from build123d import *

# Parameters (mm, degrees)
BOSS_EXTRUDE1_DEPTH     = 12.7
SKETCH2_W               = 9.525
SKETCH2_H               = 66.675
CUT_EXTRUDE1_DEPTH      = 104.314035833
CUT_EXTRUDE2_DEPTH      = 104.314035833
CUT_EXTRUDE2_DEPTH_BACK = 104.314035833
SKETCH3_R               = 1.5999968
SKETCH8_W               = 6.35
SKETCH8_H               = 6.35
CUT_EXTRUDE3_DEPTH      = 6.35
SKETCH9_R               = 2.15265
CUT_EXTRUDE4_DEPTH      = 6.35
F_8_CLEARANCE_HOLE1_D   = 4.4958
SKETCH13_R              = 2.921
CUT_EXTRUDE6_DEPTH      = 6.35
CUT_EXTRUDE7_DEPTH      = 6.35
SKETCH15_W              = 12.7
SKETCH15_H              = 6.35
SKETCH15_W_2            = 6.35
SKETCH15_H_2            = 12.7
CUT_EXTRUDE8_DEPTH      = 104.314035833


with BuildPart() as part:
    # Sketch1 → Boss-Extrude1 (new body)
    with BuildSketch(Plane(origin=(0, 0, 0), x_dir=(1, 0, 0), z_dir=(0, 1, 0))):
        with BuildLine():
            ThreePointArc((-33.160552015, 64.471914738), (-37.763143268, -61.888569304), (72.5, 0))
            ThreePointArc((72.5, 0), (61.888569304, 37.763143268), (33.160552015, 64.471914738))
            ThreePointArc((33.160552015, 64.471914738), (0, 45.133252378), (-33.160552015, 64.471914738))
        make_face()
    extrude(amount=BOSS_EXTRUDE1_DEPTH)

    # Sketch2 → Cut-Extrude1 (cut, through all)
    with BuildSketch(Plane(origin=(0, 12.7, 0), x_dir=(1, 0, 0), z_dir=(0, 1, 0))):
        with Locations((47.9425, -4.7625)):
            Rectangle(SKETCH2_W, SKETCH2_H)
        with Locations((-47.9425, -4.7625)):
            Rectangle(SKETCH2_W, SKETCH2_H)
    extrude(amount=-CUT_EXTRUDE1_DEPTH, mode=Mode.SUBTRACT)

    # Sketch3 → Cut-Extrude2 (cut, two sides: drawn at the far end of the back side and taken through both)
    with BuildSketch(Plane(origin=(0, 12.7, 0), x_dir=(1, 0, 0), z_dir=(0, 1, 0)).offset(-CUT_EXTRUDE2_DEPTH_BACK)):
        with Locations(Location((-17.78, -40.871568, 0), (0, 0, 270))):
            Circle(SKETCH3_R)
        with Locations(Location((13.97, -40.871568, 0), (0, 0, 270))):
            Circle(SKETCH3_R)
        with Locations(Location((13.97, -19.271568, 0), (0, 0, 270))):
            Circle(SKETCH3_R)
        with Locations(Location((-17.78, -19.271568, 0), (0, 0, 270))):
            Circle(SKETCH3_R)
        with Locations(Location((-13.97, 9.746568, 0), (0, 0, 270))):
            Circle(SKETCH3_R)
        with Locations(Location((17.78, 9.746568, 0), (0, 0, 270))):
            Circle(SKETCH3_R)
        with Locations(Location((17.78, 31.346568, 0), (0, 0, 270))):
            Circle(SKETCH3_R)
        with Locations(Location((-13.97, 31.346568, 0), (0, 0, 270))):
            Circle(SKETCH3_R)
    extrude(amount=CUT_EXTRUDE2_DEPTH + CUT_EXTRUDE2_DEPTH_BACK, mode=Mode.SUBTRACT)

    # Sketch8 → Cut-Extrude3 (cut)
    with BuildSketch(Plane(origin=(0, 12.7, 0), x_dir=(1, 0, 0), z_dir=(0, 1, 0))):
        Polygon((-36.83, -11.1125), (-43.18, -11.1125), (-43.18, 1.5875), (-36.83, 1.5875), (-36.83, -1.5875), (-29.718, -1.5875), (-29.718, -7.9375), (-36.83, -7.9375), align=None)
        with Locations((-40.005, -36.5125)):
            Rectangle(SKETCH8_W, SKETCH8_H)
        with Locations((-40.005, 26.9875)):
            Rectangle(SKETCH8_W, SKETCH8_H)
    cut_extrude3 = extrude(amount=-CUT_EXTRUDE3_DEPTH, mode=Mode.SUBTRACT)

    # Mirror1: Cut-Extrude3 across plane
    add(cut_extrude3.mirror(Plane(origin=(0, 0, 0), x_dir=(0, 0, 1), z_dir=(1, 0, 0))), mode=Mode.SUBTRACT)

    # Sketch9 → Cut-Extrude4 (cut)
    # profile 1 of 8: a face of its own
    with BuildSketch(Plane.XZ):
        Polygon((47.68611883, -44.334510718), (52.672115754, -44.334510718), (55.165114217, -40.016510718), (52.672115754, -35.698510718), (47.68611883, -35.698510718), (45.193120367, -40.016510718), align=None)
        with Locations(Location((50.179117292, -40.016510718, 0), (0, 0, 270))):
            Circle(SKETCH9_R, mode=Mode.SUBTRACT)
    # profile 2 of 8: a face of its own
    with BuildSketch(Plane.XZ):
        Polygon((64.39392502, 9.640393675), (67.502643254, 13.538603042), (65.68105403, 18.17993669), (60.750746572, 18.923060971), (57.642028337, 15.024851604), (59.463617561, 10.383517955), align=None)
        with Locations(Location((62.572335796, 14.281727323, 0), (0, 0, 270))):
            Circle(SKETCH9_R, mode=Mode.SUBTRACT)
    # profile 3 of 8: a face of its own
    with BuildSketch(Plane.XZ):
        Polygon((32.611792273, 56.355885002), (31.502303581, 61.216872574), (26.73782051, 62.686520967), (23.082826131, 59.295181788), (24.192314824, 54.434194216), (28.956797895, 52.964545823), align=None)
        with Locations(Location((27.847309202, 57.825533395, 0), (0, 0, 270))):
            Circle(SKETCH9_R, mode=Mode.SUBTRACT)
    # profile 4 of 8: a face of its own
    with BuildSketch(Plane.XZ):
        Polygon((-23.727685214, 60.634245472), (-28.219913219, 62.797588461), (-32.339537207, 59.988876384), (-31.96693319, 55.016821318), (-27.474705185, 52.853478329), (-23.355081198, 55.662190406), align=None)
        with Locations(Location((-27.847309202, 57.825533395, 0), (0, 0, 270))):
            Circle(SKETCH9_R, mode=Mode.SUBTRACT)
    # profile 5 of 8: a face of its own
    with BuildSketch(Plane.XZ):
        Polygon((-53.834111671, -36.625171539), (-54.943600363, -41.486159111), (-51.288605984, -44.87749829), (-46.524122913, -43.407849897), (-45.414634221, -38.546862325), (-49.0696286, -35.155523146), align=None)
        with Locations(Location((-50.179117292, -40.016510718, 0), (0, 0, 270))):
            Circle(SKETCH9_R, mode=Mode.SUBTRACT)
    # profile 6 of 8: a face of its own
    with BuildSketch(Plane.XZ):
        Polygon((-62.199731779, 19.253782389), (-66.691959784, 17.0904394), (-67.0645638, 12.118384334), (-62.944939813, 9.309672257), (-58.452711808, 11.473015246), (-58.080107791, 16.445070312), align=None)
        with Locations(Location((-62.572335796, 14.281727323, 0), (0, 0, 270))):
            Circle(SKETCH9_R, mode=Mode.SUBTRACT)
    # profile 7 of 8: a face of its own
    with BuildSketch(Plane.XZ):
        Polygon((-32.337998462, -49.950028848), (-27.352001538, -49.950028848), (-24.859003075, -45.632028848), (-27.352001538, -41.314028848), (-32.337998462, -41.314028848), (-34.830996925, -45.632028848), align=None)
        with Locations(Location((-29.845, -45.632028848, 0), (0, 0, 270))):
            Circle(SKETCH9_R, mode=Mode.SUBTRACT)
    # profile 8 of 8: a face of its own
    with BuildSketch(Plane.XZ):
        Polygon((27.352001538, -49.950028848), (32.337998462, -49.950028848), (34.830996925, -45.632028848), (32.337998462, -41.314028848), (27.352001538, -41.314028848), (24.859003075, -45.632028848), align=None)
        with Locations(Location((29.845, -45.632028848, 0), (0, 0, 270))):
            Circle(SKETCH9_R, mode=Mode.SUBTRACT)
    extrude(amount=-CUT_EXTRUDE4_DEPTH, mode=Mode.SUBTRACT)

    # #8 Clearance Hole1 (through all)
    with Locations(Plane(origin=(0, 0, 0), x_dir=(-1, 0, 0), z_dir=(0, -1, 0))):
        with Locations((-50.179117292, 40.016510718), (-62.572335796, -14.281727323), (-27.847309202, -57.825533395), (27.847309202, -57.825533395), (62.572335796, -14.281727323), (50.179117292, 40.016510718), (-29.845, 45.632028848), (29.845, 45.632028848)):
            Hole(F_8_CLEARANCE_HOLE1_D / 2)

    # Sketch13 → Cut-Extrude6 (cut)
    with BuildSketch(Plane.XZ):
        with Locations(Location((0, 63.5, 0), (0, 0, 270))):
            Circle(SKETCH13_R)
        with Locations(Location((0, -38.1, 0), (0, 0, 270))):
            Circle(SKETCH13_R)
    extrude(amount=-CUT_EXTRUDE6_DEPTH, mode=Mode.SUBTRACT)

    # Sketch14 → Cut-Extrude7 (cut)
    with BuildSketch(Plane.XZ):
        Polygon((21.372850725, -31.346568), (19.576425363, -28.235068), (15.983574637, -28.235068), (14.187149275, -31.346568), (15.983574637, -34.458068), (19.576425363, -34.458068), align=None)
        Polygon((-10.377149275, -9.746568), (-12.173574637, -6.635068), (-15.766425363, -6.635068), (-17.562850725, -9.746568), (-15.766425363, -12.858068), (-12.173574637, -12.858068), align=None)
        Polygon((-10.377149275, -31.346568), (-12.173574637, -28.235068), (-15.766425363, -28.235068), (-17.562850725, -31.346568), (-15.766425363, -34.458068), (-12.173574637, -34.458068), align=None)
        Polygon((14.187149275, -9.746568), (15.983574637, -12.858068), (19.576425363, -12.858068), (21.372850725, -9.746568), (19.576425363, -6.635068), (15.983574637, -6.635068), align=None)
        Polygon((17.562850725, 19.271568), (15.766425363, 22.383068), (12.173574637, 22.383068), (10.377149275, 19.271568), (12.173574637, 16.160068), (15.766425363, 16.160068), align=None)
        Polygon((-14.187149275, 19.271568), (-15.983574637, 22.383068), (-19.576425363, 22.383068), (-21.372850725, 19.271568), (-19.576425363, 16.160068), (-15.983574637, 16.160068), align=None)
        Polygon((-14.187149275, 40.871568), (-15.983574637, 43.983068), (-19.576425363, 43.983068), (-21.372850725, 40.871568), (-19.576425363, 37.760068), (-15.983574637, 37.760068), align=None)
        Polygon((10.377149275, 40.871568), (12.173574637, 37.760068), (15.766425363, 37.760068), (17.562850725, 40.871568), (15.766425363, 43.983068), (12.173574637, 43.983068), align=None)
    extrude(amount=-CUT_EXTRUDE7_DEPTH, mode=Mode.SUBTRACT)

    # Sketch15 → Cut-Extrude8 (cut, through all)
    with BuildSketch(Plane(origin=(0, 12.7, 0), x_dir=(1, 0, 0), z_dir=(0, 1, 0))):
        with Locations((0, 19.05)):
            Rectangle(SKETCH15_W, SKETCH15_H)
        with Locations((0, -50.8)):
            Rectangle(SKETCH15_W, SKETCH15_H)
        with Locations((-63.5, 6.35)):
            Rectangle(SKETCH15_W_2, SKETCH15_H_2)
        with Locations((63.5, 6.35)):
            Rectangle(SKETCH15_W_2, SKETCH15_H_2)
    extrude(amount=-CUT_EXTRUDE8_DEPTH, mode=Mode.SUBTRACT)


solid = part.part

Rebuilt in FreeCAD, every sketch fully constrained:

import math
import FreeCAD as App
import Part
import Sketcher
Q = App.Units.Quantity

doc = App.newDocument("Part")
body = doc.addObject("PartDesign::Body", "Body")

# Sketch on XZ plane
sketch1 = body.newObject("Sketcher::SketchObject", "Sketch")
sketch1.AttachmentSupport = (doc.getObject("XZ_Plane"), [""])
sketch1.MapMode = "FlatFace"
sketch1.addGeometry([
    Part.ArcOfCircle(Part.Circle(App.Vector(0, 0, 0), App.Vector(0, 0, 1), 72), math.radians(0), math.radians(243)),
    Part.ArcOfCircle(Part.Circle(App.Vector(0, 0, 0), App.Vector(0, 0, 1), 72), math.radians(-63), math.radians(0)),
    Part.ArcOfCircle(Part.Circle(App.Vector(0, -83, 0), App.Vector(0, 0, 1), 38), math.radians(30), math.radians(150)),
], False)
sketch1.addConstraint([
    Sketcher.Constraint("Tangent", 0, 1, 1, 2),
    Sketcher.Constraint("Coincident", 1, 1, 2, 1),
    Sketcher.Constraint("Coincident", 2, 2, 0, 2),
    Sketcher.Constraint("Coincident", 0, 3, -1, 1),
    Sketcher.Constraint("Equal", 0, 1),
    Sketcher.Constraint("PointOnObject", 2, 3, -2),
    Sketcher.Constraint("PointOnObject", 0, 1, -1),
    Sketcher.Constraint("Radius", 2, Q("1.5 in")),
    Sketcher.Constraint("Radius", 0, 72.5),
    Sketcher.Constraint("DistanceY", 2, 3, -1, 1, 83.233252),
])
pad1 = body.newObject("PartDesign::Pad", "Pad")
pad1.Profile = sketch1
pad1.Length = Q("0.5 in")
pad1.Reversed = True

# Sketch on XZ plane
sketch2 = body.newObject("Sketcher::SketchObject", "Sketch001")
sketch2.AttachmentSupport = (doc.getObject("XZ_Plane"), [""])
sketch2.MapMode = "FlatFace"
sketch2.AttachmentOffset = App.Placement(App.Vector(0, 0, -0.5 * 25.4), App.Rotation())
sketch2.addGeometry([
    Part.LineSegment(App.Vector(43, -29, 0), App.Vector(43, 38, 0)),  # 0
    Part.LineSegment(App.Vector(43, 38, 0), App.Vector(53, 38, 0)),  # 1
    Part.LineSegment(App.Vector(53, 38, 0), App.Vector(53, -29, 0)),  # 2
    Part.LineSegment(App.Vector(53, -29, 0), App.Vector(43, -29, 0)),  # 3
    Part.LineSegment(App.Vector(-53, -29, 0), App.Vector(-53, 38, 0)),  # 4
    Part.LineSegment(App.Vector(-53, 38, 0), App.Vector(-43, 38, 0)),  # 5
    Part.LineSegment(App.Vector(-43, 38, 0), App.Vector(-43, -29, 0)),  # 6
    Part.LineSegment(App.Vector(-43, -29, 0), App.Vector(-53, -29, 0)),  # 7
], False)
sketch2.addConstraint([
    Sketcher.Constraint("Coincident", 0, 2, 1, 1),
    Sketcher.Constraint("Coincident", 1, 2, 2, 1),
    Sketcher.Constraint("Coincident", 2, 2, 3, 1),
    Sketcher.Constraint("Coincident", 3, 2, 0, 1),
    Sketcher.Constraint("Coincident", 4, 2, 5, 1),
    Sketcher.Constraint("Coincident", 5, 2, 6, 1),
    Sketcher.Constraint("Coincident", 6, 2, 7, 1),
    Sketcher.Constraint("Coincident", 7, 2, 4, 1),
    Sketcher.Constraint("Vertical", 0),
    Sketcher.Constraint("Horizontal", 1),
    Sketcher.Constraint("Vertical", 2),
    Sketcher.Constraint("Horizontal", 3),
    Sketcher.Constraint("Vertical", 4),
    Sketcher.Constraint("Horizontal", 5),
    Sketcher.Constraint("Vertical", 6),
    Sketcher.Constraint("Horizontal", 7),
    Sketcher.Constraint("Symmetric", 1, 2, 4, 2, -2),
    Sketcher.Constraint("Symmetric", 3, 2, 6, 2, -2),
    Sketcher.Constraint("DistanceX", -1, 1, 0, 2, Q("1.7 in")),
    Sketcher.Constraint("DistanceY", -1, 1, 0, 2, Q("1.5 in")),
    Sketcher.Constraint("DistanceX", 1, 1, 1, 2, Q("0.375 in")),
    Sketcher.Constraint("DistanceY", 0, 1, 0, 2, Q("2.625 in")),
])
pocket1 = body.newObject("PartDesign::Pocket", "Pocket")
pocket1.Profile = sketch2
pocket1.Type = "ThroughAll"
pocket1.Reversed = True

# Sketch on XZ plane
sketch3 = body.newObject("Sketcher::SketchObject", "Sketch002")
sketch3.AttachmentSupport = (doc.getObject("XZ_Plane"), [""])
sketch3.MapMode = "FlatFace"
sketch3.AttachmentOffset = App.Placement(App.Vector(0, 0, -0.5 * 25.4), App.Rotation())
sketch3.addGeometry([
    Part.Circle(App.Vector(-17.8, 40.9, 0), App.Vector(0, 0, 1), 1.6),  # 0
    Part.Circle(App.Vector(14, 40.9, 0), App.Vector(0, 0, 1), 1.6),  # 1
    Part.Circle(App.Vector(14, 19.3, 0), App.Vector(0, 0, 1), 1.6),  # 2
    Part.Circle(App.Vector(-17.8, 19.3, 0), App.Vector(0, 0, 1), 1.6),  # 3
    Part.Circle(App.Vector(-14, -9.7, 0), App.Vector(0, 0, 1), 1.6),  # 4
    Part.Circle(App.Vector(17.8, -9.7, 0), App.Vector(0, 0, 1), 1.6),  # 5
    Part.Circle(App.Vector(17.8, -31.3, 0), App.Vector(0, 0, 1), 1.6),  # 6
    Part.Circle(App.Vector(-14, -31.3, 0), App.Vector(0, 0, 1), 1.6),  # 7
], False)
sketch3.addConstraint([
    Sketcher.Constraint("Equal", 0, 1),
    Sketcher.Constraint("Equal", 1, 2),
    Sketcher.Constraint("Equal", 2, 3),
    Sketcher.Constraint("Equal", 3, 4),
    Sketcher.Constraint("Equal", 4, 5),
    Sketcher.Constraint("Equal", 5, 6),
    Sketcher.Constraint("Equal", 6, 7),
    Sketcher.Constraint("Horizontal", 0, 3, 1, 3),
    Sketcher.Constraint("Horizontal", 2, 3, 3, 3),
    Sketcher.Constraint("Horizontal", 4, 3, 5, 3),
    Sketcher.Constraint("Horizontal", 6, 3, 7, 3),
    Sketcher.Constraint("Vertical", 1, 3, 2, 3),
    Sketcher.Constraint("Vertical", 0, 3, 3, 3),
    Sketcher.Constraint("Vertical", 5, 3, 6, 3),
    Sketcher.Constraint("Vertical", 4, 3, 7, 3),
    Sketcher.Constraint("DistanceX", 0, 3, -1, 1, Q("0.7 in")),
    Sketcher.Constraint("DistanceX", -1, 1, 5, 3, Q("0.7 in")),
    Sketcher.Constraint("DistanceX", 4, 3, 2, 3, Q("1.1 in")),
    Sketcher.Constraint("DistanceX", -1, 1, 1, 3, Q("0.55 in")),
    Sketcher.Constraint("Diameter", 0, 3.199994),
    Sketcher.Constraint("DistanceY", 2, 3, 1, 3, 21.6),
    Sketcher.Constraint("DistanceY", 6, 3, 5, 3, 21.6),
    Sketcher.Constraint("DistanceY", -1, 1, 0, 3, 40.871568),
    Sketcher.Constraint("DistanceY", 6, 3, -1, 1, 31.346568),
])
pocket2 = body.newObject("PartDesign::Pocket", "Pocket001")
pocket2.Profile = sketch3
pocket2.Type = "ThroughAll"
pocket2.Midplane = True

# Sketch on XZ plane
sketch4 = body.newObject("Sketcher::SketchObject", "Sketch003")
sketch4.AttachmentSupport = (doc.getObject("XZ_Plane"), [""])
sketch4.MapMode = "FlatFace"
sketch4.AttachmentOffset = App.Placement(App.Vector(0, 0, -0.5 * 25.4), App.Rotation())
sketch4.addGeometry([
    Part.LineSegment(App.Vector(-43.2, 11.1, 0), App.Vector(-36.8, 11.1, 0)),  # 0
    Part.LineSegment(App.Vector(-36.8, 11.1, 0), App.Vector(-36.8, 7.9, 0)),  # 1
    Part.LineSegment(App.Vector(-36.8, 7.9, 0), App.Vector(-29.7, 7.9, 0)),  # 2
    Part.LineSegment(App.Vector(-29.7, 7.9, 0), App.Vector(-29.7, 1.6, 0)),  # 3
    Part.LineSegment(App.Vector(-29.7, 1.6, 0), App.Vector(-36.8, 1.6, 0)),  # 4
    Part.LineSegment(App.Vector(-36.8, 1.6, 0), App.Vector(-36.8, -1.6, 0)),  # 5
    Part.LineSegment(App.Vector(-36.8, -1.6, 0), App.Vector(-43.2, -1.6, 0)),  # 6
    Part.LineSegment(App.Vector(-43.2, -1.6, 0), App.Vector(-43.2, 11.1, 0)),  # 7
    Part.LineSegment(App.Vector(-43.2, 33.3, 0), App.Vector(-43.2, 39.7, 0)),  # 8
    Part.LineSegment(App.Vector(-43.2, 39.7, 0), App.Vector(-36.8, 39.7, 0)),  # 9
    Part.LineSegment(App.Vector(-36.8, 39.7, 0), App.Vector(-36.8, 33.3, 0)),  # 10
    Part.LineSegment(App.Vector(-36.8, 33.3, 0), App.Vector(-43.2, 33.3, 0)),  # 11
    Part.LineSegment(App.Vector(-43.2, -30.2, 0), App.Vector(-43.2, -23.8, 0)),  # 12
    Part.LineSegment(App.Vector(-43.2, -23.8, 0), App.Vector(-36.8, -23.8, 0)),  # 13
    Part.LineSegment(App.Vector(-36.8, -23.8, 0), App.Vector(-36.8, -30.2, 0)),  # 14
    Part.LineSegment(App.Vector(-36.8, -30.2, 0), App.Vector(-43.2, -30.2, 0)),  # 15
], False)
sketch4.addConstraint([
    Sketcher.Constraint("Coincident", 0, 2, 1, 1),
    Sketcher.Constraint("Coincident", 1, 2, 2, 1),
    Sketcher.Constraint("Coincident", 2, 2, 3, 1),
    Sketcher.Constraint("Coincident", 3, 2, 4, 1),
    Sketcher.Constraint("Coincident", 4, 2, 5, 1),
    Sketcher.Constraint("Coincident", 5, 2, 6, 1),
    Sketcher.Constraint("Coincident", 6, 2, 7, 1),
    Sketcher.Constraint("Coincident", 7, 2, 0, 1),
    Sketcher.Constraint("Coincident", 8, 2, 9, 1),
    Sketcher.Constraint("Coincident", 9, 2, 10, 1),
    Sketcher.Constraint("Coincident", 10, 2, 11, 1),
    Sketcher.Constraint("Coincident", 11, 2, 8, 1),
    Sketcher.Constraint("Coincident", 12, 2, 13, 1),
    Sketcher.Constraint("Coincident", 13, 2, 14, 1),
    Sketcher.Constraint("Coincident", 14, 2, 15, 1),
    Sketcher.Constraint("Coincident", 15, 2, 12, 1),
    Sketcher.Constraint("Horizontal", 0),
    Sketcher.Constraint("Vertical", 1),
    Sketcher.Constraint("Horizontal", 2),
    Sketcher.Constraint("Vertical", 3),
    Sketcher.Constraint("Horizontal", 4),
    Sketcher.Constraint("Vertical", 5),
    Sketcher.Constraint("Horizontal", 6),
    Sketcher.Constraint("Vertical", 7),
    Sketcher.Constraint("Vertical", 8),
    Sketcher.Constraint("Horizontal", 9),
    Sketcher.Constraint("Vertical", 10),
    Sketcher.Constraint("Horizontal", 11),
    Sketcher.Constraint("Vertical", 12),
    Sketcher.Constraint("Horizontal", 13),
    Sketcher.Constraint("Vertical", 14),
    Sketcher.Constraint("Horizontal", 15),
    Sketcher.Constraint("Vertical", 1, 2, 4, 2),
    Sketcher.Constraint("Vertical", 7, 2, 8, 2),
    Sketcher.Constraint("Vertical", 5, 2, 9, 2),
    Sketcher.Constraint("Vertical", 11, 2, 12, 2),
    Sketcher.Constraint("Vertical", 10, 2, 13, 2),
    Sketcher.Constraint("Equal", 15, 3),
    Sketcher.Constraint("Equal", 1, 5),
    Sketcher.Constraint("Equal", 3, 8),
    Sketcher.Constraint("Equal", 10, 12),
    Sketcher.Constraint("DistanceY", 7, 1, 7, 2, Q("0.5 in")),
    Sketcher.Constraint("DistanceY", 1, 2, 10, 2, Q("1 in")),
    Sketcher.Constraint("DistanceY", 12, 2, 4, 2, Q("1 in")),
    Sketcher.Constraint("DistanceX", 0, 1, 0, 2, Q("0.25 in")),
    Sketcher.Constraint("DistanceX", 2, 1, 2, 2, Q("0.28 in")),
    Sketcher.Constraint("DistanceX", 6, 2, -1, 1, Q("1.7 in")),
    Sketcher.Constraint("DistanceY", -1, 1, 0, 2, Q("0.4375 in")),
])
pocket3 = body.newObject("PartDesign::Pocket", "Pocket002")
pocket3.Profile = sketch4
pocket3.Length = Q("0.25 in")
pocket3.Reversed = True
doc.recompute()

mirrored = body.newObject("PartDesign::Mirrored", "Mirrored")
mirrored.Originals = [pocket3]
mirrored.MirrorPlane = (doc.getObject("YZ_Plane"), [""])
body.Tip = mirrored

# Sketch on XZ plane
sketch5 = body.newObject("Sketcher::SketchObject", "Sketch004")
sketch5.AttachmentSupport = (doc.getObject("XZ_Plane"), [""])
sketch5.MapMode = "FlatFace"
sketch5.addGeometry([
    Part.LineSegment(App.Vector(47.7, -44.3, 0), App.Vector(52.7, -44.3, 0)),  # 0
    Part.LineSegment(App.Vector(52.7, -44.3, 0), App.Vector(55.2, -40, 0)),  # 1
    Part.LineSegment(App.Vector(55.2, -40, 0), App.Vector(52.7, -35.7, 0)),  # 2
    Part.LineSegment(App.Vector(52.7, -35.7, 0), App.Vector(47.7, -35.7, 0)),  # 3
    Part.LineSegment(App.Vector(47.7, -35.7, 0), App.Vector(45.2, -40, 0)),  # 4
    Part.LineSegment(App.Vector(45.2, -40, 0), App.Vector(47.7, -44.3, 0)),  # 5
    Part.Circle(App.Vector(50.2, -40, 0), App.Vector(0, 0, 1), 2.2),  # 6
    Part.LineSegment(App.Vector(64.4, 9.6, 0), App.Vector(67.5, 13.5, 0)),  # 7
    Part.LineSegment(App.Vector(67.5, 13.5, 0), App.Vector(65.7, 18.2, 0)),  # 8
    Part.LineSegment(App.Vector(65.7, 18.2, 0), App.Vector(60.8, 18.9, 0)),  # 9
    Part.LineSegment(App.Vector(60.8, 18.9, 0), App.Vector(57.6, 15, 0)),  # 10
    Part.LineSegment(App.Vector(57.6, 15, 0), App.Vector(59.5, 10.4, 0)),  # 11
    Part.LineSegment(App.Vector(59.5, 10.4, 0), App.Vector(64.4, 9.6, 0)),  # 12
    Part.Circle(App.Vector(62.6, 14.3, 0), App.Vector(0, 0, 1), 2.2),  # 13
    Part.LineSegment(App.Vector(32.6, 56.4, 0), App.Vector(31.5, 61.2, 0)),  # 14
    Part.LineSegment(App.Vector(31.5, 61.2, 0), App.Vector(26.7, 62.7, 0)),  # 15
    Part.LineSegment(App.Vector(26.7, 62.7, 0), App.Vector(23.1, 59.3, 0)),  # 16
    Part.LineSegment(App.Vector(23.1, 59.3, 0), App.Vector(24.2, 54.4, 0)),  # 17
    Part.LineSegment(App.Vector(24.2, 54.4, 0), App.Vector(29, 53, 0)),  # 18
    Part.LineSegment(App.Vector(29, 53, 0), App.Vector(32.6, 56.4, 0)),  # 19
    Part.Circle(App.Vector(27.8, 57.8, 0), App.Vector(0, 0, 1), 2.2),  # 20
    Part.LineSegment(App.Vector(-23.7, 60.6, 0), App.Vector(-28.2, 62.8, 0)),  # 21
    Part.LineSegment(App.Vector(-28.2, 62.8, 0), App.Vector(-32.3, 60, 0)),  # 22
    Part.LineSegment(App.Vector(-32.3, 60, 0), App.Vector(-32, 55, 0)),  # 23
    Part.LineSegment(App.Vector(-32, 55, 0), App.Vector(-27.5, 52.9, 0)),  # 24
    Part.LineSegment(App.Vector(-27.5, 52.9, 0), App.Vector(-23.4, 55.7, 0)),  # 25
    Part.LineSegment(App.Vector(-23.4, 55.7, 0), App.Vector(-23.7, 60.6, 0)),  # 26
    Part.Circle(App.Vector(-27.8, 57.8, 0), App.Vector(0, 0, 1), 2.2),  # 27
    Part.LineSegment(App.Vector(-53.8, -36.6, 0), App.Vector(-54.9, -41.5, 0)),  # 28
    Part.LineSegment(App.Vector(-54.9, -41.5, 0), App.Vector(-51.3, -44.9, 0)),  # 29
    Part.LineSegment(App.Vector(-51.3, -44.9, 0), App.Vector(-46.5, -43.4, 0)),  # 30
    Part.LineSegment(App.Vector(-46.5, -43.4, 0), App.Vector(-45.4, -38.5, 0)),  # 31
    Part.LineSegment(App.Vector(-45.4, -38.5, 0), App.Vector(-49.1, -35.2, 0)),  # 32
    Part.LineSegment(App.Vector(-49.1, -35.2, 0), App.Vector(-53.8, -36.6, 0)),  # 33
    Part.Circle(App.Vector(-50.2, -40, 0), App.Vector(0, 0, 1), 2.2),  # 34
    Part.LineSegment(App.Vector(-62.2, 19.3, 0), App.Vector(-66.7, 17.1, 0)),  # 35
    Part.LineSegment(App.Vector(-66.7, 17.1, 0), App.Vector(-67.1, 12.1, 0)),  # 36
    Part.LineSegment(App.Vector(-67.1, 12.1, 0), App.Vector(-62.9, 9.3, 0)),  # 37
    Part.LineSegment(App.Vector(-62.9, 9.3, 0), App.Vector(-58.5, 11.5, 0)),  # 38
    Part.LineSegment(App.Vector(-58.5, 11.5, 0), App.Vector(-58.1, 16.4, 0)),  # 39
    Part.LineSegment(App.Vector(-58.1, 16.4, 0), App.Vector(-62.2, 19.3, 0)),  # 40
    Part.Circle(App.Vector(-62.6, 14.3, 0), App.Vector(0, 0, 1), 2.2),  # 41
    Part.LineSegment(App.Vector(-32.3, -50, 0), App.Vector(-27.4, -50, 0)),  # 42
    Part.LineSegment(App.Vector(-27.4, -50, 0), App.Vector(-24.9, -45.6, 0)),  # 43
    Part.LineSegment(App.Vector(-24.9, -45.6, 0), App.Vector(-27.4, -41.3, 0)),  # 44
    Part.LineSegment(App.Vector(-27.4, -41.3, 0), App.Vector(-32.3, -41.3, 0)),  # 45
    Part.LineSegment(App.Vector(-32.3, -41.3, 0), App.Vector(-34.8, -45.6, 0)),  # 46
    Part.LineSegment(App.Vector(-34.8, -45.6, 0), App.Vector(-32.3, -50, 0)),  # 47
    Part.Circle(App.Vector(-29.8, -45.6, 0), App.Vector(0, 0, 1), 2.2),  # 48
    Part.LineSegment(App.Vector(27.4, -50, 0), App.Vector(32.3, -50, 0)),  # 49
    Part.LineSegment(App.Vector(32.3, -50, 0), App.Vector(34.8, -45.6, 0)),  # 50
    Part.LineSegment(App.Vector(34.8, -45.6, 0), App.Vector(32.3, -41.3, 0)),  # 51
    Part.LineSegment(App.Vector(32.3, -41.3, 0), App.Vector(27.4, -41.3, 0)),  # 52
    Part.LineSegment(App.Vector(27.4, -41.3, 0), App.Vector(24.9, -45.6, 0)),  # 53
    Part.LineSegment(App.Vector(24.9, -45.6, 0), App.Vector(27.4, -50, 0)),  # 54
    Part.Circle(App.Vector(29.8, -45.6, 0), App.Vector(0, 0, 1), 2.2),  # 55
], False)
sketch5.addConstraint([
    Sketcher.Constraint("Coincident", 0, 2, 1, 1),
    Sketcher.Constraint("Coincident", 1, 2, 2, 1),
    Sketcher.Constraint("Coincident", 2, 2, 3, 1),
    Sketcher.Constraint("Coincident", 3, 2, 4, 1),
    Sketcher.Constraint("Coincident", 4, 2, 5, 1),
    Sketcher.Constraint("Coincident", 5, 2, 0, 1),
    Sketcher.Constraint("Coincident", 7, 2, 8, 1),
    Sketcher.Constraint("Coincident", 8, 2, 9, 1),
    Sketcher.Constraint("Coincident", 9, 2, 10, 1),
    Sketcher.Constraint("Coincident", 10, 2, 11, 1),
    Sketcher.Constraint("Coincident", 11, 2, 12, 1),
    Sketcher.Constraint("Coincident", 12, 2, 7, 1),
    Sketcher.Constraint("Coincident", 14, 2, 15, 1),
    Sketcher.Constraint("Coincident", 15, 2, 16, 1),
    Sketcher.Constraint("Coincident", 16, 2, 17, 1),
    Sketcher.Constraint("Coincident", 17, 2, 18, 1),
    Sketcher.Constraint("Coincident", 18, 2, 19, 1),
    Sketcher.Constraint("Coincident", 19, 2, 14, 1),
    Sketcher.Constraint("Coincident", 21, 2, 22, 1),
    Sketcher.Constraint("Coincident", 22, 2, 23, 1),
    Sketcher.Constraint("Coincident", 23, 2, 24, 1),
    Sketcher.Constraint("Coincident", 24, 2, 25, 1),
    Sketcher.Constraint("Coincident", 25, 2, 26, 1),
    Sketcher.Constraint("Coincident", 26, 2, 21, 1),
    Sketcher.Constraint("Coincident", 28, 2, 29, 1),
    Sketcher.Constraint("Coincident", 29, 2, 30, 1),
    Sketcher.Constraint("Coincident", 30, 2, 31, 1),
    Sketcher.Constraint("Coincident", 31, 2, 32, 1),
    Sketcher.Constraint("Coincident", 32, 2, 33, 1),
    Sketcher.Constraint("Coincident", 33, 2, 28, 1),
    Sketcher.Constraint("Coincident", 35, 2, 36, 1),
    Sketcher.Constraint("Coincident", 36, 2, 37, 1),
    Sketcher.Constraint("Coincident", 37, 2, 38, 1),
    Sketcher.Constraint("Coincident", 38, 2, 39, 1),
    Sketcher.Constraint("Coincident", 39, 2, 40, 1),
    Sketcher.Constraint("Coincident", 40, 2, 35, 1),
    Sketcher.Constraint("Coincident", 42, 2, 43, 1),
    Sketcher.Constraint("Coincident", 43, 2, 44, 1),
    Sketcher.Constraint("Coincident", 44, 2, 45, 1),
    Sketcher.Constraint("Coincident", 45, 2, 46, 1),
    Sketcher.Constraint("Coincident", 46, 2, 47, 1),
    Sketcher.Constraint("Coincident", 47, 2, 42, 1),
    Sketcher.Constraint("Coincident", 49, 2, 50, 1),
    Sketcher.Constraint("Coincident", 50, 2, 51, 1),
    Sketcher.Constraint("Coincident", 51, 2, 52, 1),
    Sketcher.Constraint("Coincident", 52, 2, 53, 1),
    Sketcher.Constraint("Coincident", 53, 2, 54, 1),
    Sketcher.Constraint("Coincident", 54, 2, 49, 1),
    Sketcher.Constraint("Horizontal", 0),
    Sketcher.Constraint("Horizontal", 3),
    Sketcher.Constraint("Horizontal", 42),
    Sketcher.Constraint("Horizontal", 45),
    Sketcher.Constraint("Horizontal", 49),
    Sketcher.Constraint("Horizontal", 52),
    Sketcher.Constraint("Equal", 6, 13),
    Sketcher.Constraint("Equal", 13, 20),
    Sketcher.Constraint("Equal", 20, 27),
    Sketcher.Constraint("Equal", 27, 34),
    Sketcher.Constraint("Equal", 34, 41),
    Sketcher.Constraint("Equal", 41, 48),
    Sketcher.Constraint("Equal", 48, 55),
    Sketcher.Constraint("Symmetric", 20, 3, 27, 3, -2),
    Sketcher.Constraint("Symmetric", 6, 3, 34, 3, -2),
    Sketcher.Constraint("Symmetric", 13, 3, 41, 3, -2),
    Sketcher.Constraint("Symmetric", 48, 3, 55, 3, -2),
    Sketcher.Constraint("Symmetric", 47, 2, 49, 2, -2),
    Sketcher.Constraint("Symmetric", 46, 2, 50, 2, -2),
    Sketcher.Constraint("Symmetric", 45, 2, 51, 2, -2),
    Sketcher.Constraint("Symmetric", 43, 2, 53, 2, -2),
    Sketcher.Constraint("Parallel", 1, 4),
    Sketcher.Constraint("Parallel", 2, 5),
    Sketcher.Constraint("Parallel", 7, 10),
    Sketcher.Constraint("Parallel", 8, 11),
    Sketcher.Constraint("Parallel", 9, 12),
    Sketcher.Constraint("Parallel", 14, 17),
    Sketcher.Constraint("Parallel", 15, 18),
    Sketcher.Constraint("Parallel", 16, 19),
    Sketcher.Constraint("Parallel", 21, 24),
    Sketcher.Constraint("Parallel", 22, 25),
    Sketcher.Constraint("Parallel", 23, 26),
    Sketcher.Constraint("Parallel", 28, 31),
    Sketcher.Constraint("Parallel", 29, 32),
    Sketcher.Constraint("Parallel", 30, 33),
    Sketcher.Constraint("Parallel", 35, 38),
    Sketcher.Constraint("Parallel", 36, 39),
    Sketcher.Constraint("Parallel", 37, 40),
    Sketcher.Constraint("Parallel", 4, 43),
    Sketcher.Constraint("Parallel", 5, 44),
    Sketcher.Constraint("Parallel", 43, 46),
    Sketcher.Constraint("Parallel", 44, 47),
    Sketcher.Constraint("Parallel", 46, 50),
    Sketcher.Constraint("Parallel", 50, 53),
    Sketcher.Constraint("Parallel", 51, 54),
    Sketcher.Constraint("Horizontal", 34, 3, 1, 2),
    Sketcher.Constraint("Horizontal", 1, 2, 4, 2),
    Sketcher.Constraint("Horizontal", 55, 3, 43, 2),
    Sketcher.Constraint("Horizontal", 43, 2, 46, 2),
    Sketcher.Constraint("Vertical", 0, 2, 2, 2),
    Sketcher.Constraint("Vertical", 42, 2, 44, 2),
    Sketcher.Constraint("Equal", 3, 42),
    Sketcher.Constraint("Equal", 5, 7),
    Sketcher.Constraint("Equal", 7, 8),
    Sketcher.Constraint("Equal", 8, 9),
    Sketcher.Constraint("Equal", 9, 10),
    Sketcher.Constraint("Equal", 12, 14),
    Sketcher.Constraint("Equal", 14, 15),
    Sketcher.Constraint("Equal", 15, 16),
    Sketcher.Constraint("Equal", 16, 17),
    Sketcher.Constraint("Equal", 19, 21),
    Sketcher.Constraint("Equal", 21, 22),
    Sketcher.Constraint("Equal", 22, 23),
    Sketcher.Constraint("Equal", 23, 24),
    Sketcher.Constraint("Equal", 26, 28),
    Sketcher.Constraint("Equal", 28, 29),
    Sketcher.Constraint("Equal", 29, 30),
    Sketcher.Constraint("Equal", 30, 31),
    Sketcher.Constraint("Equal", 33, 35),
    Sketcher.Constraint("Equal", 35, 36),
    Sketcher.Constraint("Equal", 36, 37),
    Sketcher.Constraint("Equal", 37, 38),
    Sketcher.Constraint("Equal", 40, 43),
    Sketcher.Constraint("Angle", 1, Q("60 deg")),
    Sketcher.Constraint("Diameter", 6, Q("0.1695 in")),
    Sketcher.Constraint("DistanceX", 48, 3, 55, 3, Q("2.35 in")),
    Sketcher.Constraint("DistanceY", 0, 2, 6, 3, Q("0.17 in")),
    Sketcher.Constraint("DistanceY", -1, 1, 11, 2, Q("0.4087999 in")),
    Sketcher.Constraint("DistanceX", 28, 2, -1, 1, 54.9436),
    Sketcher.Constraint("DistanceY", 29, 2, -1, 1, 44.877498),
    Sketcher.Constraint("DistanceX", 42, 2, -1, 1, 27.352002),
    Sketcher.Constraint("DistanceX", 45, 2, -1, 1, 32.337998),
    Sketcher.Constraint("DistanceX", 6, 3, 0, 2, 2.492998),
    Sketcher.Constraint("DistanceX", 41, 3, 22, 2, 30.232799),
    Sketcher.Constraint("DistanceY", 24, 2, 22, 2, 7.135398),
    Sketcher.Constraint("DistanceY", 37, 2, 39, 2, 7.135398),
    Sketcher.Constraint("DistanceY", 6, 3, -1, 1, 40.016511),
    Sketcher.Constraint("DistanceX", -1, 1, 20, 3, 27.847309),
    Sketcher.Constraint("DistanceY", 48, 3, -1, 1, 45.632029),
    Sketcher.Constraint("DistanceX", -1, 1, 3, 2, 47.686119),
    Sketcher.Constraint("DistanceY", -1, 1, 9, 2, 18.923061),
    Sketcher.Constraint("DistanceX", -1, 1, 10, 2, 57.642028),
    Sketcher.Constraint("DistanceY", -1, 1, 10, 2, 15.024852),
    Sketcher.Constraint("DistanceX", -1, 1, 15, 2, 26.737821),
    Sketcher.Constraint("DistanceY", -1, 1, 15, 2, 62.686521),
    Sketcher.Constraint("DistanceY", -1, 1, 16, 2, 59.295182),
    Sketcher.Constraint("DistanceY", -1, 1, 21, 2, 62.797588),
    Sketcher.Constraint("DistanceY", -1, 1, 23, 2, 55.016821),
    Sketcher.Constraint("DistanceY", -1, 1, 24, 2, 52.853478),
    Sketcher.Constraint("DistanceX", 25, 2, -1, 1, 23.355081),
    Sketcher.Constraint("DistanceY", 28, 2, -1, 1, 41.486159),
    Sketcher.Constraint("DistanceY", 30, 2, -1, 1, 43.40785),
    Sketcher.Constraint("DistanceX", 32, 2, -1, 1, 49.069629),
    Sketcher.Constraint("DistanceX", 35, 2, -1, 1, 66.69196),
    Sketcher.Constraint("DistanceY", -1, 1, 35, 2, 17.090439),
    Sketcher.Constraint("DistanceX", 37, 2, -1, 1, 62.94494),
    Sketcher.Constraint("DistanceX", 38, 2, -1, 1, 58.452712),
    Sketcher.Constraint("DistanceY", 6, 3, 13, 3, 54.298238),
    Sketcher.Constraint("DistanceX", 1, 2, 7, 2, 12.337529),
    Sketcher.Constraint("DistanceY", 20, 3, 14, 2, 3.391339),
    Sketcher.Constraint("DistanceY", 9, 2, 14, 2, 42.293812),
    Sketcher.Constraint("DistanceY", 17, 2, 20, 3, 3.391339),
])
pocket4 = body.newObject("PartDesign::Pocket", "Pocket003")
pocket4.Profile = sketch5
pocket4.Length = Q("0.25 in")

# Sketch on XZ plane
sketch6 = body.newObject("Sketcher::SketchObject", "Sketch005")
sketch6.AttachmentSupport = (doc.getObject("XZ_Plane"), [""])
sketch6.MapMode = "FlatFace"
sketch6.addGeometry([
    Part.Circle(App.Vector(50.2, -40, 0), App.Vector(0, 0, 1), 2.2),  # 0
    Part.Circle(App.Vector(62.6, 14.3, 0), App.Vector(0, 0, 1), 2.2),  # 1
    Part.Circle(App.Vector(27.8, 57.8, 0), App.Vector(0, 0, 1), 2.2),  # 2
    Part.Circle(App.Vector(-27.8, 57.8, 0), App.Vector(0, 0, 1), 2.2),  # 3
    Part.Circle(App.Vector(-62.6, 14.3, 0), App.Vector(0, 0, 1), 2.2),  # 4
    Part.Circle(App.Vector(-50.2, -40, 0), App.Vector(0, 0, 1), 2.2),  # 5
    Part.Circle(App.Vector(29.8, -45.6, 0), App.Vector(0, 0, 1), 2.2),  # 6
    Part.Circle(App.Vector(-29.8, -45.6, 0), App.Vector(0, 0, 1), 2.2),  # 7
], False)
sketch6.addConstraint([
    Sketcher.Constraint("Equal", 0, 1),
    Sketcher.Constraint("Equal", 1, 2),
    Sketcher.Constraint("Equal", 2, 3),
    Sketcher.Constraint("Equal", 3, 4),
    Sketcher.Constraint("Equal", 4, 5),
    Sketcher.Constraint("Equal", 5, 6),
    Sketcher.Constraint("Equal", 6, 7),
    Sketcher.Constraint("Symmetric", 2, 3, 3, 3, -2),
    Sketcher.Constraint("Symmetric", 1, 3, 4, 3, -2),
    Sketcher.Constraint("Symmetric", 0, 3, 5, 3, -2),
    Sketcher.Constraint("Symmetric", 6, 3, 7, 3, -2),
    Sketcher.Constraint("Diameter", 0, Q("0.177 in")),
    Sketcher.Constraint("DistanceX", 7, 3, 6, 3, Q("2.35 in")),
    Sketcher.Constraint("DistanceY", 0, 3, -1, 1, 40.016511),
    Sketcher.Constraint("DistanceX", -1, 1, 2, 3, 27.847309),
    Sketcher.Constraint("DistanceY", 6, 3, -1, 1, 45.632029),
    Sketcher.Constraint("DistanceX", 0, 3, 1, 3, 12.393219),
    Sketcher.Constraint("DistanceY", 0, 3, 1, 3, 54.298238),
    Sketcher.Constraint("DistanceX", 2, 3, 0, 3, 22.331808),
    Sketcher.Constraint("DistanceY", -1, 1, 2, 3, 57.825533),
])
doc.recompute()
hole = body.newObject("PartDesign::Hole", "Hole")
hole.Profile = sketch6
hole.ThreadType = "None"
hole.Diameter = Q("0.177 in")
hole.DepthType = "ThroughAll"

# Sketch on XZ plane
sketch7 = body.newObject("Sketcher::SketchObject", "Sketch006")
sketch7.AttachmentSupport = (doc.getObject("XZ_Plane"), [""])
sketch7.MapMode = "FlatFace"
sketch7.addGeometry([
    Part.Circle(App.Vector(0, 63.5, 0), App.Vector(0, 0, 1), 2.9),
    Part.Circle(App.Vector(0, -38.1, 0), App.Vector(0, 0, 1), 2.9),
], False)
sketch7.addConstraint([
    Sketcher.Constraint("Equal", 0, 1),
    Sketcher.Constraint("PointOnObject", 0, 3, -2),
    Sketcher.Constraint("PointOnObject", 1, 3, -2),
    Sketcher.Constraint("Diameter", 0, Q("0.23 in")),
    Sketcher.Constraint("DistanceY", 1, 3, 0, 3, Q("4 in")),
    Sketcher.Constraint("DistanceY", -1, 1, 0, 3, Q("2.5 in")),
])
pocket5 = body.newObject("PartDesign::Pocket", "Pocket004")
pocket5.Profile = sketch7
pocket5.Length = Q("0.25 in")

# Sketch on XZ plane
sketch8 = body.newObject("Sketcher::SketchObject", "Sketch007")
sketch8.AttachmentSupport = (doc.getObject("XZ_Plane"), [""])
sketch8.MapMode = "FlatFace"
sketch8.addGeometry([
    Part.LineSegment(App.Vector(21.4, -31.3, 0), App.Vector(19.6, -28.2, 0)),  # 0
    Part.LineSegment(App.Vector(19.6, -28.2, 0), App.Vector(16, -28.2, 0)),  # 1
    Part.LineSegment(App.Vector(16, -28.2, 0), App.Vector(14.2, -31.3, 0)),  # 2
    Part.LineSegment(App.Vector(14.2, -31.3, 0), App.Vector(16, -34.5, 0)),  # 3
    Part.LineSegment(App.Vector(16, -34.5, 0), App.Vector(19.6, -34.5, 0)),  # 4
    Part.LineSegment(App.Vector(19.6, -34.5, 0), App.Vector(21.4, -31.3, 0)),  # 5
    Part.LineSegment(App.Vector(-10.4, -9.7, 0), App.Vector(-12.2, -6.6, 0)),  # 6
    Part.LineSegment(App.Vector(-12.2, -6.6, 0), App.Vector(-15.8, -6.6, 0)),  # 7
    Part.LineSegment(App.Vector(-15.8, -6.6, 0), App.Vector(-17.6, -9.7, 0)),  # 8
    Part.LineSegment(App.Vector(-17.6, -9.7, 0), App.Vector(-15.8, -12.9, 0)),  # 9
    Part.LineSegment(App.Vector(-15.8, -12.9, 0), App.Vector(-12.2, -12.9, 0)),  # 10
    Part.LineSegment(App.Vector(-12.2, -12.9, 0), App.Vector(-10.4, -9.7, 0)),  # 11
    Part.LineSegment(App.Vector(-10.4, -31.3, 0), App.Vector(-12.2, -28.2, 0)),  # 12
    Part.LineSegment(App.Vector(-12.2, -28.2, 0), App.Vector(-15.8, -28.2, 0)),  # 13
    Part.LineSegment(App.Vector(-15.8, -28.2, 0), App.Vector(-17.6, -31.3, 0)),  # 14
    Part.LineSegment(App.Vector(-17.6, -31.3, 0), App.Vector(-15.8, -34.5, 0)),  # 15
    Part.LineSegment(App.Vector(-15.8, -34.5, 0), App.Vector(-12.2, -34.5, 0)),  # 16
    Part.LineSegment(App.Vector(-12.2, -34.5, 0), App.Vector(-10.4, -31.3, 0)),  # 17
    Part.LineSegment(App.Vector(14.2, -9.7, 0), App.Vector(16, -12.9, 0)),  # 18
    Part.LineSegment(App.Vector(16, -12.9, 0), App.Vector(19.6, -12.9, 0)),  # 19
    Part.LineSegment(App.Vector(19.6, -12.9, 0), App.Vector(21.4, -9.7, 0)),  # 20
    Part.LineSegment(App.Vector(21.4, -9.7, 0), App.Vector(19.6, -6.6, 0)),  # 21
    Part.LineSegment(App.Vector(19.6, -6.6, 0), App.Vector(16, -6.6, 0)),  # 22
    Part.LineSegment(App.Vector(16, -6.6, 0), App.Vector(14.2, -9.7, 0)),  # 23
    Part.LineSegment(App.Vector(17.6, 19.3, 0), App.Vector(15.8, 22.4, 0)),  # 24
    Part.LineSegment(App.Vector(15.8, 22.4, 0), App.Vector(12.2, 22.4, 0)),  # 25
    Part.LineSegment(App.Vector(12.2, 22.4, 0), App.Vector(10.4, 19.3, 0)),  # 26
    Part.LineSegment(App.Vector(10.4, 19.3, 0), App.Vector(12.2, 16.2, 0)),  # 27
    Part.LineSegment(App.Vector(12.2, 16.2, 0), App.Vector(15.8, 16.2, 0)),  # 28
    Part.LineSegment(App.Vector(15.8, 16.2, 0), App.Vector(17.6, 19.3, 0)),  # 29
    Part.LineSegment(App.Vector(-14.2, 19.3, 0), App.Vector(-16, 22.4, 0)),  # 30
    Part.LineSegment(App.Vector(-16, 22.4, 0), App.Vector(-19.6, 22.4, 0)),  # 31
    Part.LineSegment(App.Vector(-19.6, 22.4, 0), App.Vector(-21.4, 19.3, 0)),  # 32
    Part.LineSegment(App.Vector(-21.4, 19.3, 0), App.Vector(-19.6, 16.2, 0)),  # 33
    Part.LineSegment(App.Vector(-19.6, 16.2, 0), App.Vector(-16, 16.2, 0)),  # 34
    Part.LineSegment(App.Vector(-16, 16.2, 0), App.Vector(-14.2, 19.3, 0)),  # 35
    Part.LineSegment(App.Vector(-14.2, 40.9, 0), App.Vector(-16, 44, 0)),  # 36
    Part.LineSegment(App.Vector(-16, 44, 0), App.Vector(-19.6, 44, 0)),  # 37
    Part.LineSegment(App.Vector(-19.6, 44, 0), App.Vector(-21.4, 40.9, 0)),  # 38
    Part.LineSegment(App.Vector(-21.4, 40.9, 0), App.Vector(-19.6, 37.8, 0)),  # 39
    Part.LineSegment(App.Vector(-19.6, 37.8, 0), App.Vector(-16, 37.8, 0)),  # 40
    Part.LineSegment(App.Vector(-16, 37.8, 0), App.Vector(-14.2, 40.9, 0)),  # 41
    Part.LineSegment(App.Vector(10.4, 40.9, 0), App.Vector(12.2, 37.8, 0)),  # 42
    Part.LineSegment(App.Vector(12.2, 37.8, 0), App.Vector(15.8, 37.8, 0)),  # 43
    Part.LineSegment(App.Vector(15.8, 37.8, 0), App.Vector(17.6, 40.9, 0)),  # 44
    Part.LineSegment(App.Vector(17.6, 40.9, 0), App.Vector(15.8, 44, 0)),  # 45
    Part.LineSegment(App.Vector(15.8, 44, 0), App.Vector(12.2, 44, 0)),  # 46
    Part.LineSegment(App.Vector(12.2, 44, 0), App.Vector(10.4, 40.9, 0)),  # 47
], False)
sketch8.addConstraint([
    Sketcher.Constraint("Coincident", 0, 2, 1, 1),
    Sketcher.Constraint("Coincident", 1, 2, 2, 1),
    Sketcher.Constraint("Coincident", 2, 2, 3, 1),
    Sketcher.Constraint("Coincident", 3, 2, 4, 1),
    Sketcher.Constraint("Coincident", 4, 2, 5, 1),
    Sketcher.Constraint("Coincident", 5, 2, 0, 1),
    Sketcher.Constraint("Coincident", 6, 2, 7, 1),
    Sketcher.Constraint("Coincident", 7, 2, 8, 1),
    Sketcher.Constraint("Coincident", 8, 2, 9, 1),
    Sketcher.Constraint("Coincident", 9, 2, 10, 1),
    Sketcher.Constraint("Coincident", 10, 2, 11, 1),
    Sketcher.Constraint("Coincident", 11, 2, 6, 1),
    Sketcher.Constraint("Coincident", 12, 2, 13, 1),
    Sketcher.Constraint("Coincident", 13, 2, 14, 1),
    Sketcher.Constraint("Coincident", 14, 2, 15, 1),
    Sketcher.Constraint("Coincident", 15, 2, 16, 1),
    Sketcher.Constraint("Coincident", 16, 2, 17, 1),
    Sketcher.Constraint("Coincident", 17, 2, 12, 1),
    Sketcher.Constraint("Coincident", 18, 2, 19, 1),
    Sketcher.Constraint("Coincident", 19, 2, 20, 1),
    Sketcher.Constraint("Coincident", 20, 2, 21, 1),
    Sketcher.Constraint("Coincident", 21, 2, 22, 1),
    Sketcher.Constraint("Coincident", 22, 2, 23, 1),
    Sketcher.Constraint("Coincident", 23, 2, 18, 1),
    Sketcher.Constraint("Coincident", 24, 2, 25, 1),
    Sketcher.Constraint("Coincident", 25, 2, 26, 1),
    Sketcher.Constraint("Coincident", 26, 2, 27, 1),
    Sketcher.Constraint("Coincident", 27, 2, 28, 1),
    Sketcher.Constraint("Coincident", 28, 2, 29, 1),
    Sketcher.Constraint("Coincident", 29, 2, 24, 1),
    Sketcher.Constraint("Coincident", 30, 2, 31, 1),
    Sketcher.Constraint("Coincident", 31, 2, 32, 1),
    Sketcher.Constraint("Coincident", 32, 2, 33, 1),
    Sketcher.Constraint("Coincident", 33, 2, 34, 1),
    Sketcher.Constraint("Coincident", 34, 2, 35, 1),
    Sketcher.Constraint("Coincident", 35, 2, 30, 1),
    Sketcher.Constraint("Coincident", 36, 2, 37, 1),
    Sketcher.Constraint("Coincident", 37, 2, 38, 1),
    Sketcher.Constraint("Coincident", 38, 2, 39, 1),
    Sketcher.Constraint("Coincident", 39, 2, 40, 1),
    Sketcher.Constraint("Coincident", 40, 2, 41, 1),
    Sketcher.Constraint("Coincident", 41, 2, 36, 1),
    Sketcher.Constraint("Coincident", 42, 2, 43, 1),
    Sketcher.Constraint("Coincident", 43, 2, 44, 1),
    Sketcher.Constraint("Coincident", 44, 2, 45, 1),
    Sketcher.Constraint("Coincident", 45, 2, 46, 1),
    Sketcher.Constraint("Coincident", 46, 2, 47, 1),
    Sketcher.Constraint("Coincident", 47, 2, 42, 1),
    Sketcher.Constraint("Horizontal", 1),
    Sketcher.Constraint("Horizontal", 4),
    Sketcher.Constraint("Horizontal", 7),
    Sketcher.Constraint("Horizontal", 10),
    Sketcher.Constraint("Horizontal", 13),
    Sketcher.Constraint("Horizontal", 16),
    Sketcher.Constraint("Horizontal", 19),
    Sketcher.Constraint("Horizontal", 22),
    Sketcher.Constraint("Horizontal", 25),
    Sketcher.Constraint("Horizontal", 28),
    Sketcher.Constraint("Horizontal", 31),
    Sketcher.Constraint("Horizontal", 34),
    Sketcher.Constraint("Horizontal", 37),
    Sketcher.Constraint("Horizontal", 40),
    Sketcher.Constraint("Horizontal", 43),
    Sketcher.Constraint("Horizontal", 46),
    Sketcher.Constraint("Parallel", 0, 3),
    Sketcher.Constraint("Parallel", 2, 5),
    Sketcher.Constraint("Parallel", 3, 6),
    Sketcher.Constraint("Parallel", 5, 8),
    Sketcher.Constraint("Parallel", 6, 9),
    Sketcher.Constraint("Parallel", 8, 11),
    Sketcher.Constraint("Parallel", 9, 12),
    Sketcher.Constraint("Parallel", 11, 14),
    Sketcher.Constraint("Parallel", 12, 15),
    Sketcher.Constraint("Parallel", 14, 17),
    Sketcher.Constraint("Parallel", 15, 18),
    Sketcher.Constraint("Parallel", 17, 20),
    Sketcher.Constraint("Parallel", 18, 21),
    Sketcher.Constraint("Parallel", 20, 23),
    Sketcher.Constraint("Parallel", 21, 24),
    Sketcher.Constraint("Parallel", 23, 26),
    Sketcher.Constraint("Parallel", 24, 27),
    Sketcher.Constraint("Parallel", 26, 29),
    Sketcher.Constraint("Parallel", 27, 30),
    Sketcher.Constraint("Parallel", 29, 32),
    Sketcher.Constraint("Parallel", 30, 33),
    Sketcher.Constraint("Parallel", 32, 35),
    Sketcher.Constraint("Parallel", 33, 36),
    Sketcher.Constraint("Parallel", 35, 38),
    Sketcher.Constraint("Parallel", 36, 39),
    Sketcher.Constraint("Parallel", 38, 41),
    Sketcher.Constraint("Parallel", 39, 42),
    Sketcher.Constraint("Parallel", 41, 44),
    Sketcher.Constraint("Parallel", 42, 45),
    Sketcher.Constraint("Parallel", 44, 47),
    Sketcher.Constraint("Horizontal", 2, 2, 5, 2),
    Sketcher.Constraint("Horizontal", 8, 2, 11, 2),
    Sketcher.Constraint("Horizontal", 1, 2, 12, 2),
    Sketcher.Constraint("Horizontal", 5, 2, 14, 2),
    Sketcher.Constraint("Horizontal", 4, 2, 15, 2),
    Sketcher.Constraint("Horizontal", 14, 2, 17, 2),
    Sketcher.Constraint("Horizontal", 10, 2, 18, 2),
    Sketcher.Constraint("Horizontal", 11, 2, 20, 2),
    Sketcher.Constraint("Horizontal", 7, 2, 21, 2),
    Sketcher.Constraint("Horizontal", 20, 2, 23, 2),
    Sketcher.Constraint("Horizontal", 26, 2, 29, 2),
    Sketcher.Constraint("Horizontal", 25, 2, 30, 2),
    Sketcher.Constraint("Horizontal", 29, 2, 32, 2),
    Sketcher.Constraint("Horizontal", 28, 2, 33, 2),
    Sketcher.Constraint("Horizontal", 32, 2, 35, 2),
    Sketcher.Constraint("Horizontal", 38, 2, 41, 2),
    Sketcher.Constraint("Horizontal", 40, 2, 42, 2),
    Sketcher.Constraint("Horizontal", 41, 2, 44, 2),
    Sketcher.Constraint("Horizontal", 37, 2, 45, 2),
    Sketcher.Constraint("Horizontal", 44, 2, 47, 2),
    Sketcher.Constraint("Vertical", 1, 2, 3, 2),
    Sketcher.Constraint("Vertical", 0, 2, 4, 2),
    Sketcher.Constraint("Vertical", 7, 2, 9, 2),
    Sketcher.Constraint("Vertical", 10, 2, 12, 2),
    Sketcher.Constraint("Vertical", 9, 2, 13, 2),
    Sketcher.Constraint("Vertical", 8, 2, 14, 2),
    Sketcher.Constraint("Vertical", 3, 2, 18, 2),
    Sketcher.Constraint("Vertical", 4, 2, 19, 2),
    Sketcher.Constraint("Vertical", 25, 2, 27, 2),
    Sketcher.Constraint("Vertical", 34, 2, 36, 2),
    Sketcher.Constraint("Vertical", 33, 2, 37, 2),
    Sketcher.Constraint("Vertical", 32, 2, 38, 2),
    Sketcher.Constraint("Vertical", 37, 2, 39, 2),
    Sketcher.Constraint("Vertical", 27, 2, 42, 2),
    Sketcher.Constraint("Vertical", 28, 2, 43, 2),
    Sketcher.Constraint("Equal", 4, 7),
    Sketcher.Constraint("Equal", 22, 25),
    Sketcher.Constraint("Equal", 28, 31),
    Sketcher.Constraint("Equal", 23, 24),
    Sketcher.Constraint("Angle", 0, Q("120 deg")),
    Sketcher.Constraint("DistanceX", 6, 2, 0, 2, Q("1.25 in")),
    Sketcher.Constraint("DistanceX", 24, 2, 21, 2, Q("0.15 in")),
    Sketcher.Constraint("DistanceX", 30, 2, 6, 2, Q("0.15 in")),
    Sketcher.Constraint("DistanceY", 3, 2, 1, 2, Q("0.245 in")),
    Sketcher.Constraint("DistanceX", 1, 2, 1, 1, 3.592851),
    Sketcher.Constraint("DistanceY", 1, 2, 6, 2, 21.6),
    Sketcher.Constraint("DistanceY", 30, 2, 36, 2, 21.6),
    Sketcher.Constraint("DistanceX", -1, 1, 2, 2, 14.187149),
    Sketcher.Constraint("DistanceY", 2, 2, -1, 1, 31.346568),
    Sketcher.Constraint("DistanceY", -1, 1, 24, 2, 22.383068),
])
pocket6 = body.newObject("PartDesign::Pocket", "Pocket005")
pocket6.Profile = sketch8
pocket6.Length = Q("0.25 in")

# Sketch on XZ plane
sketch9 = body.newObject("Sketcher::SketchObject", "Sketch008")
sketch9.AttachmentSupport = (doc.getObject("XZ_Plane"), [""])
sketch9.MapMode = "FlatFace"
sketch9.AttachmentOffset = App.Placement(App.Vector(0, 0, -0.5 * 25.4), App.Rotation())
sketch9.addGeometry([
    Part.LineSegment(App.Vector(-6, -22, 0), App.Vector(-6, -16, 0)),  # 0
    Part.LineSegment(App.Vector(-6, -16, 0), App.Vector(6, -16, 0)),  # 1
    Part.LineSegment(App.Vector(6, -16, 0), App.Vector(6, -22, 0)),  # 2
    Part.LineSegment(App.Vector(6, -22, 0), App.Vector(-6, -22, 0)),  # 3
    Part.LineSegment(App.Vector(-6, 48, 0), App.Vector(-6, 54, 0)),  # 4
    Part.LineSegment(App.Vector(-6, 54, 0), App.Vector(6, 54, 0)),  # 5
    Part.LineSegment(App.Vector(6, 54, 0), App.Vector(6, 48, 0)),  # 6
    Part.LineSegment(App.Vector(6, 48, 0), App.Vector(-6, 48, 0)),  # 7
    Part.LineSegment(App.Vector(-67, -13, 0), App.Vector(-67, 0, 0)),  # 8
    Part.LineSegment(App.Vector(-67, 0, 0), App.Vector(-60, 0, 0)),  # 9
    Part.LineSegment(App.Vector(-60, 0, 0), App.Vector(-60, -13, 0)),  # 10
    Part.LineSegment(App.Vector(-60, -13, 0), App.Vector(-67, -13, 0)),  # 11
    Part.LineSegment(App.Vector(60, -13, 0), App.Vector(60, 0, 0)),  # 12
    Part.LineSegment(App.Vector(60, 0, 0), App.Vector(67, 0, 0)),  # 13
    Part.LineSegment(App.Vector(67, 0, 0), App.Vector(67, -13, 0)),  # 14
    Part.LineSegment(App.Vector(67, -13, 0), App.Vector(60, -13, 0)),  # 15
], False)
sketch9.addConstraint([
    Sketcher.Constraint("Coincident", 0, 2, 1, 1),
    Sketcher.Constraint("Coincident", 1, 2, 2, 1),
    Sketcher.Constraint("Coincident", 2, 2, 3, 1),
    Sketcher.Constraint("Coincident", 3, 2, 0, 1),
    Sketcher.Constraint("Coincident", 4, 2, 5, 1),
    Sketcher.Constraint("Coincident", 5, 2, 6, 1),
    Sketcher.Constraint("Coincident", 6, 2, 7, 1),
    Sketcher.Constraint("Coincident", 7, 2, 4, 1),
    Sketcher.Constraint("Coincident", 8, 2, 9, 1),
    Sketcher.Constraint("Coincident", 9, 2, 10, 1),
    Sketcher.Constraint("Coincident", 10, 2, 11, 1),
    Sketcher.Constraint("Coincident", 11, 2, 8, 1),
    Sketcher.Constraint("Coincident", 12, 2, 13, 1),
    Sketcher.Constraint("Coincident", 13, 2, 14, 1),
    Sketcher.Constraint("Coincident", 14, 2, 15, 1),
    Sketcher.Constraint("Coincident", 15, 2, 12, 1),
    Sketcher.Constraint("Vertical", 0),
    Sketcher.Constraint("Horizontal", 1),
    Sketcher.Constraint("Vertical", 2),
    Sketcher.Constraint("Horizontal", 3),
    Sketcher.Constraint("Vertical", 4),
    Sketcher.Constraint("Horizontal", 5),
    Sketcher.Constraint("Vertical", 6),
    Sketcher.Constraint("Horizontal", 7),
    Sketcher.Constraint("Vertical", 8),
    Sketcher.Constraint("Horizontal", 9),
    Sketcher.Constraint("Vertical", 10),
    Sketcher.Constraint("Horizontal", 11),
    Sketcher.Constraint("Vertical", 12),
    Sketcher.Constraint("Horizontal", 13),
    Sketcher.Constraint("Vertical", 14),
    Sketcher.Constraint("Horizontal", 15),
    Sketcher.Constraint("Symmetric", 9, 2, 12, 2, -1, 1),
    Sketcher.Constraint("Symmetric", 8, 2, 13, 2, -2),
    Sketcher.Constraint("Horizontal", 11, 2, 14, 2),
    Sketcher.Constraint("Vertical", 3, 2, 4, 2),
    Sketcher.Constraint("Vertical", 2, 2, 5, 2),
    Sketcher.Constraint("Equal", 15, 0),
    Sketcher.Constraint("Equal", 2, 4),
    Sketcher.Constraint("Equal", 7, 8),
    Sketcher.Constraint("DistanceX", 1, 1, 1, 2, Q("0.5 in")),
    Sketcher.Constraint("DistanceY", 3, 2, 4, 2, Q("3 in")),
    Sketcher.Constraint("DistanceX", 9, 1, 9, 2, Q("0.25 in")),
    Sketcher.Constraint("DistanceX", 0, 2, -1, 1, Q("0.25 in")),
    Sketcher.Constraint("DistanceY", 0, 2, -1, 1, Q("0.625 in")),
    Sketcher.Constraint("DistanceX", 8, 2, -1, 1, Q("2.625 in")),
])
pocket7 = body.newObject("PartDesign::Pocket", "Pocket006")
pocket7.Profile = sketch9
pocket7.Type = "ThroughAll"
pocket7.Reversed = True

doc.recompute()
